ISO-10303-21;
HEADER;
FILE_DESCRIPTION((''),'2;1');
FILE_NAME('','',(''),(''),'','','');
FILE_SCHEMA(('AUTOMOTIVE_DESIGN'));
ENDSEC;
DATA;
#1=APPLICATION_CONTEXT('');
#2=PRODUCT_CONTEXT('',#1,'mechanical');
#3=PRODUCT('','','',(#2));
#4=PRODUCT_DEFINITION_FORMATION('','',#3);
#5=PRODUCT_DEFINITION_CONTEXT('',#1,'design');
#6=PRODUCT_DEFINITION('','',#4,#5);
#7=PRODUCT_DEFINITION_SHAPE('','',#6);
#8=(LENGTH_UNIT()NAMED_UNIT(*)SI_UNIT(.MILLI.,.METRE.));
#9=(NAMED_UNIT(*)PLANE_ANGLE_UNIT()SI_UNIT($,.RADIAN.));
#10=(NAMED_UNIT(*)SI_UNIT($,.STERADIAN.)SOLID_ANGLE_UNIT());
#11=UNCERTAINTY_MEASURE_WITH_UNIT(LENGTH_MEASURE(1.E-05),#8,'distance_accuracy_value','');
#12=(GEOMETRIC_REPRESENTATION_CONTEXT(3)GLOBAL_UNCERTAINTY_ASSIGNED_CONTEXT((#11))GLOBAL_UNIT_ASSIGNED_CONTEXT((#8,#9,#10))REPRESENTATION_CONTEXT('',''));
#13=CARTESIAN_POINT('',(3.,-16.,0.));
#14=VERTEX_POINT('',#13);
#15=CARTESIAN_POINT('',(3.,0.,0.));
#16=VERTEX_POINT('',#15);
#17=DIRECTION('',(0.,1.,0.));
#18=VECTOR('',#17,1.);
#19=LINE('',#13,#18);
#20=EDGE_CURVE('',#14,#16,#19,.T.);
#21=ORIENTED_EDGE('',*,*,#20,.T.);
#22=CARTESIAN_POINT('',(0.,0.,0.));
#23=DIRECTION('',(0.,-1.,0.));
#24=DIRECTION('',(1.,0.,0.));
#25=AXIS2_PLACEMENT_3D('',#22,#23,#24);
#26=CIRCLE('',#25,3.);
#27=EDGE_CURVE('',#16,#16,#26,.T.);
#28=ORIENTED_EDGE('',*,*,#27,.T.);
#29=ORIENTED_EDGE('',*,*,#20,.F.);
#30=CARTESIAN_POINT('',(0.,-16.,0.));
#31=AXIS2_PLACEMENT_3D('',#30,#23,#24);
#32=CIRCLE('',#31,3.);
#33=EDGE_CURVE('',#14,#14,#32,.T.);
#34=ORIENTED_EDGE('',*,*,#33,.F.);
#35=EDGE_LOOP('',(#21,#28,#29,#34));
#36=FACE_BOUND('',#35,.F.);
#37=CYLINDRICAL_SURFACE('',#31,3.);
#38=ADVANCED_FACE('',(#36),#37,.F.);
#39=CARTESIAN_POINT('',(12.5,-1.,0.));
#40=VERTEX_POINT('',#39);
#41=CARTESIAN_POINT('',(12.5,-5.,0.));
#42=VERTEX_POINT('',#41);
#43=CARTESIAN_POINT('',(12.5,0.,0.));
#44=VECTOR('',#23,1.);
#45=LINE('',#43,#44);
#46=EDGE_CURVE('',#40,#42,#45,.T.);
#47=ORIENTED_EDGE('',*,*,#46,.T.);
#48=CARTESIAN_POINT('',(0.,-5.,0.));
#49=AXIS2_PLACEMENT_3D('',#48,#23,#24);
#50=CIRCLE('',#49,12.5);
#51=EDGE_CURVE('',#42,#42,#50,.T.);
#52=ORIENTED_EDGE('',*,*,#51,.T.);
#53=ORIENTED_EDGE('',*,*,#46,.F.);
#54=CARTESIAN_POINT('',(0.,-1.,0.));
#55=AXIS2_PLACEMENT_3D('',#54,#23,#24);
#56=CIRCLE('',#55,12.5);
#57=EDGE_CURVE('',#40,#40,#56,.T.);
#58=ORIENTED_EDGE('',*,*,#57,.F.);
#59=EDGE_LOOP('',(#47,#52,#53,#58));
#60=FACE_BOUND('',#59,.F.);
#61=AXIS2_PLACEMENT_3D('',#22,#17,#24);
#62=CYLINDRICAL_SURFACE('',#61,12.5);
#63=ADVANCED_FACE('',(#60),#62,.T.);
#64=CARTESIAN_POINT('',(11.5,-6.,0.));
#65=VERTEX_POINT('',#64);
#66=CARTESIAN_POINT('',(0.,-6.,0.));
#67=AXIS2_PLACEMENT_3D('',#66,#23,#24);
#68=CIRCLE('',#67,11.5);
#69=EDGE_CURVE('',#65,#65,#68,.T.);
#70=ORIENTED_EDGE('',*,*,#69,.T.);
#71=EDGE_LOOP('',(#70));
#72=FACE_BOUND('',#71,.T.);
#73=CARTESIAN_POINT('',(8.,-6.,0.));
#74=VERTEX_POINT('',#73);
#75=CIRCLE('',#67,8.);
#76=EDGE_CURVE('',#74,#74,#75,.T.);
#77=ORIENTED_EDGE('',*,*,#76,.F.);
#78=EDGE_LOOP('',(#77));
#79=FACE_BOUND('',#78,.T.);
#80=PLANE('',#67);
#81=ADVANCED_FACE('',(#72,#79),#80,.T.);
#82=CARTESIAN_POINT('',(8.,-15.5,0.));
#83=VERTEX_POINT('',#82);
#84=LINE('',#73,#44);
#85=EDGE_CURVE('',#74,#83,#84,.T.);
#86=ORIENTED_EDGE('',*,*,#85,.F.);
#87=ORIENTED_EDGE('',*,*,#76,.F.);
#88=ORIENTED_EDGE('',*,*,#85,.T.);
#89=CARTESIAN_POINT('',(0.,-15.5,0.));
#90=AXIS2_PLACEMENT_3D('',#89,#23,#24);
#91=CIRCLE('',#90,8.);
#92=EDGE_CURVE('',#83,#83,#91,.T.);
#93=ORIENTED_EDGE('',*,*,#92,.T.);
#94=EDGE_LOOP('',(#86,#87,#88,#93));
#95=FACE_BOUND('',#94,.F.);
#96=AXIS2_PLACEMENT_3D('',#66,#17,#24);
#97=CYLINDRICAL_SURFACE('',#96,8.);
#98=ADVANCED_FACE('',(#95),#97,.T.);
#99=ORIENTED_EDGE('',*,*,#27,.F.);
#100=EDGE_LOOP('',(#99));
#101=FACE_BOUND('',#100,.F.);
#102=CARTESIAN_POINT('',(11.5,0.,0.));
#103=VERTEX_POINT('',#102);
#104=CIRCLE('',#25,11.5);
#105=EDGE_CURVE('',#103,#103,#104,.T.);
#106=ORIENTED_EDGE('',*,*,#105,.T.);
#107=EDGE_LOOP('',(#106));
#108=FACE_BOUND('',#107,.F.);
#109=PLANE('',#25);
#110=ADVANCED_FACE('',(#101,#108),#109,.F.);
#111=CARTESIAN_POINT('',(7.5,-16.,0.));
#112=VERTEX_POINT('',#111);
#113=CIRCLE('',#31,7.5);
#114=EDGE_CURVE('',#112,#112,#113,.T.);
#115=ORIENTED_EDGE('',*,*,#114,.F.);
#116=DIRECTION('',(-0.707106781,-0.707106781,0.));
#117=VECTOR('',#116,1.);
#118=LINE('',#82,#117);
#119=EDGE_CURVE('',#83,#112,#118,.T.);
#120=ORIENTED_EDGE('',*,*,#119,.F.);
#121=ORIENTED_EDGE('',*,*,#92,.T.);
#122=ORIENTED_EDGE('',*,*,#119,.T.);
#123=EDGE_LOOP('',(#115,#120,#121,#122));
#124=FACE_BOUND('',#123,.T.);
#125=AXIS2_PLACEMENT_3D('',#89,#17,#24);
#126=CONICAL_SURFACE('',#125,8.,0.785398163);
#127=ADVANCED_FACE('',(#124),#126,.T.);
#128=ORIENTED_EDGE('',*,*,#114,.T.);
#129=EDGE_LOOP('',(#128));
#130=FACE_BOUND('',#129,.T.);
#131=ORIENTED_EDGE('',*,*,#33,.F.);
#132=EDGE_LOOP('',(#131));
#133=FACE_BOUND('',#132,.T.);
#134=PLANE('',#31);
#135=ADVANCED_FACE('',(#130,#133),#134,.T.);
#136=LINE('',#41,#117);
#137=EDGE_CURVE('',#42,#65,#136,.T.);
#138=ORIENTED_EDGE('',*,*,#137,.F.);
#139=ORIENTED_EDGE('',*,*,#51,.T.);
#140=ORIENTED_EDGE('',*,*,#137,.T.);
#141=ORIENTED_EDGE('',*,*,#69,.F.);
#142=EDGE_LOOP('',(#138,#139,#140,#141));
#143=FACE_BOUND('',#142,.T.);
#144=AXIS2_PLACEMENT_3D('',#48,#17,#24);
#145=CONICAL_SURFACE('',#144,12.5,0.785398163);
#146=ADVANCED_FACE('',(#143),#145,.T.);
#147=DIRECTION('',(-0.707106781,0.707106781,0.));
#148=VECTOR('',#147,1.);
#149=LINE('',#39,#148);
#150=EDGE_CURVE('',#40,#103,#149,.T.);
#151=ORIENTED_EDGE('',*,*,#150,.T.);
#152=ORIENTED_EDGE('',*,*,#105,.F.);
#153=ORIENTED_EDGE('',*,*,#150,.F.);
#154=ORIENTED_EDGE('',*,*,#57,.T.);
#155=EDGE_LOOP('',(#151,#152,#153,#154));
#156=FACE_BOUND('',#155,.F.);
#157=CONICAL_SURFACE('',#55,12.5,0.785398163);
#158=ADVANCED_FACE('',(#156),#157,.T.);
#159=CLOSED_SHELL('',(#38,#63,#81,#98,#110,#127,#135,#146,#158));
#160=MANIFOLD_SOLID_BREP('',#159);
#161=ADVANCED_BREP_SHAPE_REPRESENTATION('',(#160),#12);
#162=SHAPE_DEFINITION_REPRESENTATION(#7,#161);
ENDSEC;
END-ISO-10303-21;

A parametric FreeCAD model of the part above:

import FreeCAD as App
import Part
import Sketcher
from FreeCAD import Vector
Q = App.Units.Quantity


def edges_at(feature, points):
    """Names of the edges that pass closest to the given points."""
    edges = feature.Shape.Edges
    near = lambda p: min(range(len(edges)), key=lambda i: edges[i].distToShape(Part.Vertex(*p))[0])
    return sorted({f"Edge{near(p) + 1}" for p in points})

doc = App.newDocument("Part")
body = doc.addObject("PartDesign::Body", "Body")

# Sketch on XZ plane
sketch1 = body.newObject("Sketcher::SketchObject", "Sketch")
sketch1.AttachmentSupport = (doc.getObject("XZ_Plane"), [""])
sketch1.MapMode = "FlatFace"
sketch1.addGeometry(Part.Circle(Vector(0, 0, 0), Vector(0, 0, 1), 12), False)
sketch1.addConstraint(Sketcher.Constraint("Coincident", 0, 3, -1, 1))
sketch1.addConstraint(Sketcher.Constraint("Diameter", 0, Q("25 mm")))
pad1 = body.newObject("PartDesign::Pad", "Pad")
pad1.Profile = sketch1
pad1.Length = 6

# Sketch on XZ plane
sketch2 = body.newObject("Sketcher::SketchObject", "Sketch001")
sketch2.AttachmentSupport = (doc.getObject("XZ_Plane"), [""])
sketch2.MapMode = "FlatFace"
sketch2.AttachmentOffset = App.Placement(Vector(0, 0, 6), App.Rotation())
sketch2.addGeometry(Part.Circle(Vector(0, 0, 0), Vector(0, 0, 1), 8), False)
sketch2.addConstraint(Sketcher.Constraint("Coincident", 0, 3, -1, 1))
sketch2.addConstraint(Sketcher.Constraint("Diameter", 0, Q("16 mm")))
pad2 = body.newObject("PartDesign::Pad", "Pad001")
pad2.Profile = sketch2
pad2.Length = 10

# Sketch on XZ plane
sketch3 = body.newObject("Sketcher::SketchObject", "Sketch002")
sketch3.AttachmentSupport = (doc.getObject("XZ_Plane"), [""])
sketch3.MapMode = "FlatFace"
sketch3.AttachmentOffset = App.Placement(Vector(0, 0, 16), App.Rotation())
sketch3.addGeometry(Part.Circle(Vector(0, 0, 0), Vector(0, 0, 1), 3), False)
sketch3.addConstraint(Sketcher.Constraint("Coincident", 0, 3, -1, 1))
sketch3.addConstraint(Sketcher.Constraint("Diameter", 0, Q("6 mm")))
pocket1 = body.newObject("PartDesign::Pocket", "Pocket")
pocket1.Profile = sketch3
pocket1.Length = 25
doc.recompute()

chamfer = body.newObject("PartDesign::Chamfer", "Chamfer")
chamfer.Base = (pocket1, edges_at(pocket1, [(-12.5, -6, 0), (-12.5, 0, 0)]))
chamfer.Size = 1
doc.recompute()

chamfer2 = body.newObject("PartDesign::Chamfer", "Chamfer001")
chamfer2.Base = (chamfer, edges_at(chamfer, [(-8, -16, 0)]))
chamfer2.Size = 0.5

doc.recompute()
